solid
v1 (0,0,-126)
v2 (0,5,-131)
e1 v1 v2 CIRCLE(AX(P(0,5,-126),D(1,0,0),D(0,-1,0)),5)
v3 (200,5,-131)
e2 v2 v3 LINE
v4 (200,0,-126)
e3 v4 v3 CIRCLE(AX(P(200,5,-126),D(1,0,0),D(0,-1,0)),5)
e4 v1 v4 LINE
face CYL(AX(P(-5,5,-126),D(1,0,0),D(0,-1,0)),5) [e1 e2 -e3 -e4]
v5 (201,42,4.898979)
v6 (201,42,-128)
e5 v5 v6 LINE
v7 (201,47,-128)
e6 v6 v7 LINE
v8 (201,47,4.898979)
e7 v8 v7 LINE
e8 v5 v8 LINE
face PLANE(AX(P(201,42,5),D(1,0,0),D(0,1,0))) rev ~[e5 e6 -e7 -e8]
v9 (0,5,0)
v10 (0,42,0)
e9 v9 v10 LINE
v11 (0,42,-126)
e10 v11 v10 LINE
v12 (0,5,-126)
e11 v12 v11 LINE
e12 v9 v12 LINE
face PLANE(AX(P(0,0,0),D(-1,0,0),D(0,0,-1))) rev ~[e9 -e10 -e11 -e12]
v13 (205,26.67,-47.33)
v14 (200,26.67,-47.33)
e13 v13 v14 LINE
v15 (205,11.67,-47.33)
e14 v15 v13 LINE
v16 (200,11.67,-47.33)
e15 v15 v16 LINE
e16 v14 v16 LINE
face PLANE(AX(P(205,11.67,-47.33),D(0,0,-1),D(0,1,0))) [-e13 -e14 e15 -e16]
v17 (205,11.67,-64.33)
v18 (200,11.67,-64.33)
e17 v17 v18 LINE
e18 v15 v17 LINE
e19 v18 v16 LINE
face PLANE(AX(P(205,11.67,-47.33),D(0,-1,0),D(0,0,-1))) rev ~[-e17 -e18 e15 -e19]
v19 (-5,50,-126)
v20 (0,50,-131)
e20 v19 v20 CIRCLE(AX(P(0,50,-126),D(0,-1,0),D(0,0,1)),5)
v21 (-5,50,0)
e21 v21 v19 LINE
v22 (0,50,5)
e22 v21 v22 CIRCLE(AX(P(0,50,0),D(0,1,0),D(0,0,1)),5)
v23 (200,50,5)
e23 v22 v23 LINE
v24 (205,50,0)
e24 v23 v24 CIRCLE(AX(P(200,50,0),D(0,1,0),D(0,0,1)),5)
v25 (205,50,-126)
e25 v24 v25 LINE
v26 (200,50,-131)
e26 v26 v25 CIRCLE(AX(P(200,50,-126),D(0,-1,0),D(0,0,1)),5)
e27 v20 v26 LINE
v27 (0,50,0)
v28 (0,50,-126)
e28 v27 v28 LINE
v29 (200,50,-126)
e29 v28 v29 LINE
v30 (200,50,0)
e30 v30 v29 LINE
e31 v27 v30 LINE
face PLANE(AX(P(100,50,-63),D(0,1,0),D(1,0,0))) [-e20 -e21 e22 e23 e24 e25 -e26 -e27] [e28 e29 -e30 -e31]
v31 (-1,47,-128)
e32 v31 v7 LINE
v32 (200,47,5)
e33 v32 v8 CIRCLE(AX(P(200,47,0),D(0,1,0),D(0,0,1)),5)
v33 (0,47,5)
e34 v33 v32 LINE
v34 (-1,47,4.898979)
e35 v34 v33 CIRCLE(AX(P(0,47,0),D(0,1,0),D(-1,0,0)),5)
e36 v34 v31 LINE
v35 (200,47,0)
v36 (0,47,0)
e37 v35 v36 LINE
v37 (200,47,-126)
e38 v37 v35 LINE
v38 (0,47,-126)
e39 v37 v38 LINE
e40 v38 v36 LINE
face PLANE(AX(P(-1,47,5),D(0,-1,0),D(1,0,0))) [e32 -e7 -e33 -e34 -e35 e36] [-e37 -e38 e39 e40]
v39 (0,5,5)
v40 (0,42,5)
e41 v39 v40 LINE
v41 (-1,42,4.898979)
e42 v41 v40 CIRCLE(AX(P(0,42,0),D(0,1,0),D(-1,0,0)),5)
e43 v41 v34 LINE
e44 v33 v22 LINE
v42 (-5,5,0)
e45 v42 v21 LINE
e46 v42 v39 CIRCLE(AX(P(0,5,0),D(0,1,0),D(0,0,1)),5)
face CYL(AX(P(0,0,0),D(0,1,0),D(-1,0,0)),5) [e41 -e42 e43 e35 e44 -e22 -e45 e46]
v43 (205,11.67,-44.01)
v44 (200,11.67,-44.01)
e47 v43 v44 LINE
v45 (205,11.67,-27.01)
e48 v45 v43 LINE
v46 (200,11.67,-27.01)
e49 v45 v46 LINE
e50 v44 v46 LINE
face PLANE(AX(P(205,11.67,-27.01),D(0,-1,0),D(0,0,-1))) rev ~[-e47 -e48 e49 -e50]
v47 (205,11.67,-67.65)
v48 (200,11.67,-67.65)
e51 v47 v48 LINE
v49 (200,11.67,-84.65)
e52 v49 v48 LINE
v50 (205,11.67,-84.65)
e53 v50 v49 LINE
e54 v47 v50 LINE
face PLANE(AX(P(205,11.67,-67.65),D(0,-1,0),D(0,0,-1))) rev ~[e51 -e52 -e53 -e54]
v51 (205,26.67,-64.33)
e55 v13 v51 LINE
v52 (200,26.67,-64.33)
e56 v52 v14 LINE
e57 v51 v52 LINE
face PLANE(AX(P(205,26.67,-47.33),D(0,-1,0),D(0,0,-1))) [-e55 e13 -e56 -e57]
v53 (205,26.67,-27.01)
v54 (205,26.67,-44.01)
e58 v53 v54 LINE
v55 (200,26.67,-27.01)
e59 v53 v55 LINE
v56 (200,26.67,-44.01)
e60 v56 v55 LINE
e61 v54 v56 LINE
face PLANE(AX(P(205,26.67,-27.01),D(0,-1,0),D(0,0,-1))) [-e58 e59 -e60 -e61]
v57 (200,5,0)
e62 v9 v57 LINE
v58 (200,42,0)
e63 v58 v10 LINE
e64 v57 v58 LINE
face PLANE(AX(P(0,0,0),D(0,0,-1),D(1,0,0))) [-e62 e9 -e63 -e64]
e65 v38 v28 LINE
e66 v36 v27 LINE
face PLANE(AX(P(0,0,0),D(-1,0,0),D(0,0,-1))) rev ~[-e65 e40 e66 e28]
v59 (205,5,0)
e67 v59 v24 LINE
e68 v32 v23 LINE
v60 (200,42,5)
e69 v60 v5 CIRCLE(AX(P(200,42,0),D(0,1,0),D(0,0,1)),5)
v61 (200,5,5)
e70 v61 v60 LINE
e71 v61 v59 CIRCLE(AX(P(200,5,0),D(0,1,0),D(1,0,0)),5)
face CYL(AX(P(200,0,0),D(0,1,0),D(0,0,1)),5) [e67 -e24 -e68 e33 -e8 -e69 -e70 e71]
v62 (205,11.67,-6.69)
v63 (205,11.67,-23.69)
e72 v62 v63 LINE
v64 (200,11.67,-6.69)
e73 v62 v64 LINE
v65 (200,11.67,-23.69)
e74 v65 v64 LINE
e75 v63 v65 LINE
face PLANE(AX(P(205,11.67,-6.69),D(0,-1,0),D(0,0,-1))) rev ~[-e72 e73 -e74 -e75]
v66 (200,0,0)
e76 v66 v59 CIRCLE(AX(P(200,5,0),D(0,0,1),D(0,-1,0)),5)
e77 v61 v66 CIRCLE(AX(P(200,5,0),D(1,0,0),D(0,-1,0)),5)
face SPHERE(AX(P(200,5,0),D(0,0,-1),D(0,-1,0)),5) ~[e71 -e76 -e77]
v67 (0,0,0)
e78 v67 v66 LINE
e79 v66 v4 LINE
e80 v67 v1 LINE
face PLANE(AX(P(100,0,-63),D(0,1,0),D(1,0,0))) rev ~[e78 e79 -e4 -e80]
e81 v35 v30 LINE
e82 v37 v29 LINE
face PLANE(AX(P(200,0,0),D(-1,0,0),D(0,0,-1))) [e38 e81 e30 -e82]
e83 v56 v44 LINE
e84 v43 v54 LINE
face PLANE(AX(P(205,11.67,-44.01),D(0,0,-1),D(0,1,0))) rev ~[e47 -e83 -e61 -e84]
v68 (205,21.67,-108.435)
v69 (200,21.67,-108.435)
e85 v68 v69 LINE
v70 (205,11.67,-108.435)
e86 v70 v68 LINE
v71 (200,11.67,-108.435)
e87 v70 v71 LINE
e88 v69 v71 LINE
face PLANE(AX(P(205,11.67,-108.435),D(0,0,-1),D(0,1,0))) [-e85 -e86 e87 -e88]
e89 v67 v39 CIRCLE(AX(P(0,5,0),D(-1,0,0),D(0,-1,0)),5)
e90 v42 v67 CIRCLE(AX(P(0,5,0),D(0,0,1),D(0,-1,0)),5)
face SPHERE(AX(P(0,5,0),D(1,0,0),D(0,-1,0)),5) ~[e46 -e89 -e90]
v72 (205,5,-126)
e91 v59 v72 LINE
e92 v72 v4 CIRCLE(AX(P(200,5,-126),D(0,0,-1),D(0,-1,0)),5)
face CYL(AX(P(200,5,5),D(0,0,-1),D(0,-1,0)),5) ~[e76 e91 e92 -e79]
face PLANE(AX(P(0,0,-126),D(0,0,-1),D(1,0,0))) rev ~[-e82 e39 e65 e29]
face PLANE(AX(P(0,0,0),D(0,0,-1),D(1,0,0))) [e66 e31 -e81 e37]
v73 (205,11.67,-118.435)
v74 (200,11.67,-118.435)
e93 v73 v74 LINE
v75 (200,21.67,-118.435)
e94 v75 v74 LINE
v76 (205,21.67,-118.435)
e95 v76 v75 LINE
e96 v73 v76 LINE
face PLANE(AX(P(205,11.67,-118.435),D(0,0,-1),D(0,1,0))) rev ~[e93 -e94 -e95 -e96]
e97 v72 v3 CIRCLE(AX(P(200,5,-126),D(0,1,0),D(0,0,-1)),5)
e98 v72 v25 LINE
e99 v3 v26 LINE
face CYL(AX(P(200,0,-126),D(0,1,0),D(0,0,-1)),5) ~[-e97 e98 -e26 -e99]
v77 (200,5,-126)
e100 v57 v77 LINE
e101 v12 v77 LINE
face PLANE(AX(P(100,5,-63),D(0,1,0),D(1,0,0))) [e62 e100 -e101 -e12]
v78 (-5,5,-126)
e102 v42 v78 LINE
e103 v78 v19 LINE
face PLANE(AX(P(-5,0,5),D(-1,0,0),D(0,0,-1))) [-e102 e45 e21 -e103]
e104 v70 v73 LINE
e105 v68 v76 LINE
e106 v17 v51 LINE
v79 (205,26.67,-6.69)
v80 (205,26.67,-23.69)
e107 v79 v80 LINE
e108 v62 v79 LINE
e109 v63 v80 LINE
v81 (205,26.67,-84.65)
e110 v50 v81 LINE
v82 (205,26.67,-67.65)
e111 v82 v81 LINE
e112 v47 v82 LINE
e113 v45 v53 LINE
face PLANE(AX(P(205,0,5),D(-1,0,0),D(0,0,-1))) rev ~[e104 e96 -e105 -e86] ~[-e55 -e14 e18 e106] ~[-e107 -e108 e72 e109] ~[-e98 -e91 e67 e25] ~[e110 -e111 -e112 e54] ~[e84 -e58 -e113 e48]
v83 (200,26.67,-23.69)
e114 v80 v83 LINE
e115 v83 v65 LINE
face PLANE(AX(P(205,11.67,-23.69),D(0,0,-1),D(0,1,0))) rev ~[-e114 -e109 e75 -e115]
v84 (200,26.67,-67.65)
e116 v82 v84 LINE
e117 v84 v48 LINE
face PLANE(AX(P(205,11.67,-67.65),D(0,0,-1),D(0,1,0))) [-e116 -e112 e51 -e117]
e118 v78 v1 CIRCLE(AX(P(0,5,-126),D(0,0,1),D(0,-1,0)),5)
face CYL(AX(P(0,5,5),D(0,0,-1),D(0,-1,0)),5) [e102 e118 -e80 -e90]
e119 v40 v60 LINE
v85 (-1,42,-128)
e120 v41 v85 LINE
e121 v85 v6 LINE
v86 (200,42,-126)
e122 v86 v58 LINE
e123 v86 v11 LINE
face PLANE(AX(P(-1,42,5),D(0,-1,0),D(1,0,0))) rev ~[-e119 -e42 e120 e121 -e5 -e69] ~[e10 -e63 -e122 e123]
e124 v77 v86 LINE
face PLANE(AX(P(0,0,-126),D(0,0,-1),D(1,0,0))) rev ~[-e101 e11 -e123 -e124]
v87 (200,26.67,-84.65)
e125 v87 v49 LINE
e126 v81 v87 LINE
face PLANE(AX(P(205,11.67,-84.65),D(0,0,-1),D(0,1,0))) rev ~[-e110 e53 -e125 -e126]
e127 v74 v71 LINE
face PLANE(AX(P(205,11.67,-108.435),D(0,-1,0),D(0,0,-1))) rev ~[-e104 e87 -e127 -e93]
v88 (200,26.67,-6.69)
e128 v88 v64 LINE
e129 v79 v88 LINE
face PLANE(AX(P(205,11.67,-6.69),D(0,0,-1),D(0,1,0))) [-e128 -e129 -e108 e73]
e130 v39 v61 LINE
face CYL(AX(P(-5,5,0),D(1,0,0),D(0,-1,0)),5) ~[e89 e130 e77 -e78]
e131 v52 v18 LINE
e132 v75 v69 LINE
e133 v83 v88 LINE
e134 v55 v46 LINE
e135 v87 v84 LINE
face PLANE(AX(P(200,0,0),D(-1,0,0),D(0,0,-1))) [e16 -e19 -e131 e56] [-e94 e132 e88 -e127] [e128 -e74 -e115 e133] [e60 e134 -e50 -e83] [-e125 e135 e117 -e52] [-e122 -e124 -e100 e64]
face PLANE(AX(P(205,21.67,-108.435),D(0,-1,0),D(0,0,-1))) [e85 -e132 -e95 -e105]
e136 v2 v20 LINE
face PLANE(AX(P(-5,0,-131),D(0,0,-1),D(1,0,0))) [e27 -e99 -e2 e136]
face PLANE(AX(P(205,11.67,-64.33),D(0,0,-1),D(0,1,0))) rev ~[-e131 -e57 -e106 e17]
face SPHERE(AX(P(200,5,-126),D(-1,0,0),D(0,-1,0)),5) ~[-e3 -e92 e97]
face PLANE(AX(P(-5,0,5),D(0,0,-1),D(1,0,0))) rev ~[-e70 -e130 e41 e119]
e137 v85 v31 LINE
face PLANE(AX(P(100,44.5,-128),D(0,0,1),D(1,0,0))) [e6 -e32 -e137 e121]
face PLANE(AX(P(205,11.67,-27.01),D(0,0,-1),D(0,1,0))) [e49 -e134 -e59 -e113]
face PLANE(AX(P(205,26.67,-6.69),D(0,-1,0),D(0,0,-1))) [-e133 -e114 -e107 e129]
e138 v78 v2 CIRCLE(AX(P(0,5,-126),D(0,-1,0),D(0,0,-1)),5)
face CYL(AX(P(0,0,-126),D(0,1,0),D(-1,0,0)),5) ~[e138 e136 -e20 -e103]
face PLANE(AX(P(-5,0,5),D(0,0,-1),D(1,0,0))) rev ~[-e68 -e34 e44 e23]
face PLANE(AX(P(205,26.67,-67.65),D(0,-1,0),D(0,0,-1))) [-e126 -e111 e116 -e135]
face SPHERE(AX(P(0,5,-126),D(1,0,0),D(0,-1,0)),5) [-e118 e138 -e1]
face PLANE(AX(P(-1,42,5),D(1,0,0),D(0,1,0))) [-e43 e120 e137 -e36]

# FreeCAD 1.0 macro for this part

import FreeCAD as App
import Part
import Sketcher

V = App.Vector


def edges_at(feature, points):
    """Names of the edges that pass closest to the given points."""
    edges = feature.Shape.Edges
    near = lambda p: min(range(len(edges)), key=lambda i: edges[i].distToShape(Part.Vertex(*p))[0])
    return sorted({f"Edge{near(p) + 1}" for p in points})


def add_polygon(sketch, points):
    """Adds a closed chain of lines whose ends are joined by coincident constraints."""
    first, n = sketch.GeometryCount, len(points)
    for a, b in zip(points, points[1:] + points[:1]):
        sketch.addGeometry(Part.LineSegment(App.Vector(*a, 0), App.Vector(*b, 0)), False)
    for i in range(n):
        sketch.addConstraint(Sketcher.Constraint("Coincident", first + i, 2, first + (i + 1) % n, 1))

doc = App.newDocument("Part")
body = doc.addObject("PartDesign::Body", "Body")

# Sketch on XZ plane
sketch1 = body.newObject("Sketcher::SketchObject", "Sketch")
sketch1.AttachmentSupport = (doc.getObject("XZ_Plane"), [""])
sketch1.MapMode = "FlatFace"
add_polygon(sketch1, [(-5, -131), (-5, 5), (205, 5), (205, -131)])  # lines 0-3
add_polygon(sketch1, [(200, 0), (0, 0), (0, -126), (200, -126)])  # lines 4-7
sketch1.addConstraint([
    Sketcher.Constraint("Vertical", 0),
    Sketcher.Constraint("Horizontal", 1),
    Sketcher.Constraint("Vertical", 2),
    Sketcher.Constraint("Horizontal", 3),
    Sketcher.Constraint("Horizontal", 4),
    Sketcher.Constraint("Vertical", 5),
    Sketcher.Constraint("Horizontal", 6),
    Sketcher.Constraint("Vertical", 7),
    Sketcher.Constraint("Coincident", 4, 2, -1, 1),
    Sketcher.Constraint("DistanceX", 1, 1, 1, 2, 210.0),
    Sketcher.Constraint("DistanceX", 4, 2, 4, 1, 200.0),
    Sketcher.Constraint("DistanceY", 0, 1, 0, 2, 136.0),
    Sketcher.Constraint("DistanceY", 5, 2, 5, 1, 126.0),
    Sketcher.Constraint("DistanceX", 0, 2, -1, 1, 5.0),
    Sketcher.Constraint("DistanceY", -1, 1, 0, 2, 5.0),
])
pad1 = body.newObject("PartDesign::Pad", "Pad")
pad1.Profile = sketch1
pad1.Length = 50
pad1.Reversed = True

# Sketch on XZ plane
sketch2 = body.newObject("Sketcher::SketchObject", "Sketch001")
sketch2.AttachmentSupport = (doc.getObject("XZ_Plane"), [""])
sketch2.MapMode = "FlatFace"
add_polygon(sketch2, [(0, -126), (0, 0), (200, 0), (200, -126)])  # lines 0-3
sketch2.addConstraint([
    Sketcher.Constraint("Vertical", 0),
    Sketcher.Constraint("Horizontal", 1),
    Sketcher.Constraint("Vertical", 2),
    Sketcher.Constraint("Horizontal", 3),
    Sketcher.Constraint("Coincident", 0, 2, -1, 1),
    Sketcher.Constraint("DistanceX", 1, 1, 1, 2, 200.0),
    Sketcher.Constraint("DistanceY", 0, 1, 0, 2, 126.0),
])
pad2 = body.newObject("PartDesign::Pad", "Pad001")
pad2.Profile = sketch2
pad2.Length = 5
pad2.Reversed = True
doc.recompute()

fillet = body.newObject("PartDesign::Fillet", "Fillet")
fillet.Base = (pad2, edges_at(pad2, [
    (100, 0, -131),
    (205, 0, -63),
    (100, 0, 5),
    (-5, 0, -63),
    (-5, 25, -131),
    (205, 25, -131),
    (205, 25, 5),
    (-5, 25, 5),
]))
fillet.Radius = 5

# Sketch on XY plane
sketch3 = body.newObject("Sketcher::SketchObject", "Sketch002")
sketch3.AttachmentSupport = (doc.getObject("XY_Plane"), [""])
sketch3.MapMode = "FlatFace"
sketch3.AttachmentOffset = App.Placement(V(0, 0, 5), App.Rotation())
add_polygon(sketch3, [(-1, 47), (-1, 42), (201, 42), (201, 47)])  # lines 0-3
sketch3.addConstraint([
    Sketcher.Constraint("Vertical", 0),
    Sketcher.Constraint("Horizontal", 1),
    Sketcher.Constraint("Vertical", 2),
    Sketcher.Constraint("Horizontal", 3),
    Sketcher.Constraint("DistanceX", 1, 1, 1, 2, 202.0),
    Sketcher.Constraint("DistanceY", 0, 2, 0, 1, 5.0),
    Sketcher.Constraint("DistanceX", 0, 2, -1, 1, 1.0),
    Sketcher.Constraint("DistanceY", -1, 1, 0, 2, 42.0),
])
pocket1 = body.newObject("PartDesign::Pocket", "Pocket")
pocket1.Profile = sketch3
pocket1.Length = 133

# Sketch on YZ plane
sketch4 = body.newObject("Sketcher::SketchObject", "Sketch003")
sketch4.AttachmentSupport = (doc.getObject("YZ_Plane"), [""])
sketch4.MapMode = "FlatFace"
sketch4.AttachmentOffset = App.Placement(V(0, 0, 205), App.Rotation())
add_polygon(sketch4, [(27, -7), (12, -7), (12, -24), (27, -24)])  # lines 0-3
add_polygon(sketch4, [(27, -27), (12, -27), (12, -44), (27, -44)])  # lines 4-7
add_polygon(sketch4, [(27, -47), (12, -47), (12, -64), (27, -64)])  # lines 8-11
add_polygon(sketch4, [(27, -68), (12, -68), (12, -85), (27, -85)])  # lines 12-15
add_polygon(sketch4, [(22, -108), (12, -108), (12, -118), (22, -118)])  # lines 16-19
sketch4.addConstraint([
    Sketcher.Constraint("Horizontal", 0),
    Sketcher.Constraint("Vertical", 1),
    Sketcher.Constraint("Horizontal", 2),
    Sketcher.Constraint("Vertical", 3),
    Sketcher.Constraint("Horizontal", 4),
    Sketcher.Constraint("Vertical", 5),
    Sketcher.Constraint("Horizontal", 6),
    Sketcher.Constraint("Vertical", 7),
    Sketcher.Constraint("Horizontal", 8),
    Sketcher.Constraint("Vertical", 9),
    Sketcher.Constraint("Horizontal", 10),
    Sketcher.Constraint("Vertical", 11),
    Sketcher.Constraint("Horizontal", 12),
    Sketcher.Constraint("Vertical", 13),
    Sketcher.Constraint("Horizontal", 14),
    Sketcher.Constraint("Vertical", 15),
    Sketcher.Constraint("Horizontal", 16),
    Sketcher.Constraint("Vertical", 17),
    Sketcher.Constraint("Horizontal", 18),
    Sketcher.Constraint("Vertical", 19),
    Sketcher.Constraint("Vertical", 1, 2, 4, 2),
    Sketcher.Constraint("Vertical", 3, 2, 6, 2),
    Sketcher.Constraint("Vertical", 5, 2, 8, 2),
    Sketcher.Constraint("Vertical", 7, 2, 10, 2),
    Sketcher.Constraint("Vertical", 9, 2, 12, 2),
    Sketcher.Constraint("Vertical", 11, 2, 14, 2),
    Sketcher.Constraint("Vertical", 13, 2, 16, 2),
    Sketcher.Constraint("Equal", 3, 5),
    Sketcher.Constraint("Equal", 7, 9),
    Sketcher.Constraint("Equal", 11, 13),
    Sketcher.Constraint("Equal", 18, 17),
    Sketcher.Constraint("DistanceX", 0, 2, 0, 1, 15.0),
    Sketcher.Constraint("DistanceX", 16, 2, 16, 1, 10.0),
    Sketcher.Constraint("DistanceY", 1, 2, 1, 1, 17.0),
    Sketcher.Constraint("DistanceX", -1, 1, 0, 2, 11.67),
    Sketcher.Constraint("DistanceY", 0, 2, -1, 1, 6.69),
    Sketcher.Constraint("DistanceY", 4, 2, -1, 1, 27.01),
    Sketcher.Constraint("DistanceY", 8, 2, -1, 1, 47.33),
    Sketcher.Constraint("DistanceY", 12, 2, -1, 1, 67.65),
    Sketcher.Constraint("DistanceY", 16, 2, -1, 1, 108.435),
])
pocket2 = body.newObject("PartDesign::Pocket", "Pocket001")
pocket2.Profile = sketch4
pocket2.Length = 10

doc.recompute()
